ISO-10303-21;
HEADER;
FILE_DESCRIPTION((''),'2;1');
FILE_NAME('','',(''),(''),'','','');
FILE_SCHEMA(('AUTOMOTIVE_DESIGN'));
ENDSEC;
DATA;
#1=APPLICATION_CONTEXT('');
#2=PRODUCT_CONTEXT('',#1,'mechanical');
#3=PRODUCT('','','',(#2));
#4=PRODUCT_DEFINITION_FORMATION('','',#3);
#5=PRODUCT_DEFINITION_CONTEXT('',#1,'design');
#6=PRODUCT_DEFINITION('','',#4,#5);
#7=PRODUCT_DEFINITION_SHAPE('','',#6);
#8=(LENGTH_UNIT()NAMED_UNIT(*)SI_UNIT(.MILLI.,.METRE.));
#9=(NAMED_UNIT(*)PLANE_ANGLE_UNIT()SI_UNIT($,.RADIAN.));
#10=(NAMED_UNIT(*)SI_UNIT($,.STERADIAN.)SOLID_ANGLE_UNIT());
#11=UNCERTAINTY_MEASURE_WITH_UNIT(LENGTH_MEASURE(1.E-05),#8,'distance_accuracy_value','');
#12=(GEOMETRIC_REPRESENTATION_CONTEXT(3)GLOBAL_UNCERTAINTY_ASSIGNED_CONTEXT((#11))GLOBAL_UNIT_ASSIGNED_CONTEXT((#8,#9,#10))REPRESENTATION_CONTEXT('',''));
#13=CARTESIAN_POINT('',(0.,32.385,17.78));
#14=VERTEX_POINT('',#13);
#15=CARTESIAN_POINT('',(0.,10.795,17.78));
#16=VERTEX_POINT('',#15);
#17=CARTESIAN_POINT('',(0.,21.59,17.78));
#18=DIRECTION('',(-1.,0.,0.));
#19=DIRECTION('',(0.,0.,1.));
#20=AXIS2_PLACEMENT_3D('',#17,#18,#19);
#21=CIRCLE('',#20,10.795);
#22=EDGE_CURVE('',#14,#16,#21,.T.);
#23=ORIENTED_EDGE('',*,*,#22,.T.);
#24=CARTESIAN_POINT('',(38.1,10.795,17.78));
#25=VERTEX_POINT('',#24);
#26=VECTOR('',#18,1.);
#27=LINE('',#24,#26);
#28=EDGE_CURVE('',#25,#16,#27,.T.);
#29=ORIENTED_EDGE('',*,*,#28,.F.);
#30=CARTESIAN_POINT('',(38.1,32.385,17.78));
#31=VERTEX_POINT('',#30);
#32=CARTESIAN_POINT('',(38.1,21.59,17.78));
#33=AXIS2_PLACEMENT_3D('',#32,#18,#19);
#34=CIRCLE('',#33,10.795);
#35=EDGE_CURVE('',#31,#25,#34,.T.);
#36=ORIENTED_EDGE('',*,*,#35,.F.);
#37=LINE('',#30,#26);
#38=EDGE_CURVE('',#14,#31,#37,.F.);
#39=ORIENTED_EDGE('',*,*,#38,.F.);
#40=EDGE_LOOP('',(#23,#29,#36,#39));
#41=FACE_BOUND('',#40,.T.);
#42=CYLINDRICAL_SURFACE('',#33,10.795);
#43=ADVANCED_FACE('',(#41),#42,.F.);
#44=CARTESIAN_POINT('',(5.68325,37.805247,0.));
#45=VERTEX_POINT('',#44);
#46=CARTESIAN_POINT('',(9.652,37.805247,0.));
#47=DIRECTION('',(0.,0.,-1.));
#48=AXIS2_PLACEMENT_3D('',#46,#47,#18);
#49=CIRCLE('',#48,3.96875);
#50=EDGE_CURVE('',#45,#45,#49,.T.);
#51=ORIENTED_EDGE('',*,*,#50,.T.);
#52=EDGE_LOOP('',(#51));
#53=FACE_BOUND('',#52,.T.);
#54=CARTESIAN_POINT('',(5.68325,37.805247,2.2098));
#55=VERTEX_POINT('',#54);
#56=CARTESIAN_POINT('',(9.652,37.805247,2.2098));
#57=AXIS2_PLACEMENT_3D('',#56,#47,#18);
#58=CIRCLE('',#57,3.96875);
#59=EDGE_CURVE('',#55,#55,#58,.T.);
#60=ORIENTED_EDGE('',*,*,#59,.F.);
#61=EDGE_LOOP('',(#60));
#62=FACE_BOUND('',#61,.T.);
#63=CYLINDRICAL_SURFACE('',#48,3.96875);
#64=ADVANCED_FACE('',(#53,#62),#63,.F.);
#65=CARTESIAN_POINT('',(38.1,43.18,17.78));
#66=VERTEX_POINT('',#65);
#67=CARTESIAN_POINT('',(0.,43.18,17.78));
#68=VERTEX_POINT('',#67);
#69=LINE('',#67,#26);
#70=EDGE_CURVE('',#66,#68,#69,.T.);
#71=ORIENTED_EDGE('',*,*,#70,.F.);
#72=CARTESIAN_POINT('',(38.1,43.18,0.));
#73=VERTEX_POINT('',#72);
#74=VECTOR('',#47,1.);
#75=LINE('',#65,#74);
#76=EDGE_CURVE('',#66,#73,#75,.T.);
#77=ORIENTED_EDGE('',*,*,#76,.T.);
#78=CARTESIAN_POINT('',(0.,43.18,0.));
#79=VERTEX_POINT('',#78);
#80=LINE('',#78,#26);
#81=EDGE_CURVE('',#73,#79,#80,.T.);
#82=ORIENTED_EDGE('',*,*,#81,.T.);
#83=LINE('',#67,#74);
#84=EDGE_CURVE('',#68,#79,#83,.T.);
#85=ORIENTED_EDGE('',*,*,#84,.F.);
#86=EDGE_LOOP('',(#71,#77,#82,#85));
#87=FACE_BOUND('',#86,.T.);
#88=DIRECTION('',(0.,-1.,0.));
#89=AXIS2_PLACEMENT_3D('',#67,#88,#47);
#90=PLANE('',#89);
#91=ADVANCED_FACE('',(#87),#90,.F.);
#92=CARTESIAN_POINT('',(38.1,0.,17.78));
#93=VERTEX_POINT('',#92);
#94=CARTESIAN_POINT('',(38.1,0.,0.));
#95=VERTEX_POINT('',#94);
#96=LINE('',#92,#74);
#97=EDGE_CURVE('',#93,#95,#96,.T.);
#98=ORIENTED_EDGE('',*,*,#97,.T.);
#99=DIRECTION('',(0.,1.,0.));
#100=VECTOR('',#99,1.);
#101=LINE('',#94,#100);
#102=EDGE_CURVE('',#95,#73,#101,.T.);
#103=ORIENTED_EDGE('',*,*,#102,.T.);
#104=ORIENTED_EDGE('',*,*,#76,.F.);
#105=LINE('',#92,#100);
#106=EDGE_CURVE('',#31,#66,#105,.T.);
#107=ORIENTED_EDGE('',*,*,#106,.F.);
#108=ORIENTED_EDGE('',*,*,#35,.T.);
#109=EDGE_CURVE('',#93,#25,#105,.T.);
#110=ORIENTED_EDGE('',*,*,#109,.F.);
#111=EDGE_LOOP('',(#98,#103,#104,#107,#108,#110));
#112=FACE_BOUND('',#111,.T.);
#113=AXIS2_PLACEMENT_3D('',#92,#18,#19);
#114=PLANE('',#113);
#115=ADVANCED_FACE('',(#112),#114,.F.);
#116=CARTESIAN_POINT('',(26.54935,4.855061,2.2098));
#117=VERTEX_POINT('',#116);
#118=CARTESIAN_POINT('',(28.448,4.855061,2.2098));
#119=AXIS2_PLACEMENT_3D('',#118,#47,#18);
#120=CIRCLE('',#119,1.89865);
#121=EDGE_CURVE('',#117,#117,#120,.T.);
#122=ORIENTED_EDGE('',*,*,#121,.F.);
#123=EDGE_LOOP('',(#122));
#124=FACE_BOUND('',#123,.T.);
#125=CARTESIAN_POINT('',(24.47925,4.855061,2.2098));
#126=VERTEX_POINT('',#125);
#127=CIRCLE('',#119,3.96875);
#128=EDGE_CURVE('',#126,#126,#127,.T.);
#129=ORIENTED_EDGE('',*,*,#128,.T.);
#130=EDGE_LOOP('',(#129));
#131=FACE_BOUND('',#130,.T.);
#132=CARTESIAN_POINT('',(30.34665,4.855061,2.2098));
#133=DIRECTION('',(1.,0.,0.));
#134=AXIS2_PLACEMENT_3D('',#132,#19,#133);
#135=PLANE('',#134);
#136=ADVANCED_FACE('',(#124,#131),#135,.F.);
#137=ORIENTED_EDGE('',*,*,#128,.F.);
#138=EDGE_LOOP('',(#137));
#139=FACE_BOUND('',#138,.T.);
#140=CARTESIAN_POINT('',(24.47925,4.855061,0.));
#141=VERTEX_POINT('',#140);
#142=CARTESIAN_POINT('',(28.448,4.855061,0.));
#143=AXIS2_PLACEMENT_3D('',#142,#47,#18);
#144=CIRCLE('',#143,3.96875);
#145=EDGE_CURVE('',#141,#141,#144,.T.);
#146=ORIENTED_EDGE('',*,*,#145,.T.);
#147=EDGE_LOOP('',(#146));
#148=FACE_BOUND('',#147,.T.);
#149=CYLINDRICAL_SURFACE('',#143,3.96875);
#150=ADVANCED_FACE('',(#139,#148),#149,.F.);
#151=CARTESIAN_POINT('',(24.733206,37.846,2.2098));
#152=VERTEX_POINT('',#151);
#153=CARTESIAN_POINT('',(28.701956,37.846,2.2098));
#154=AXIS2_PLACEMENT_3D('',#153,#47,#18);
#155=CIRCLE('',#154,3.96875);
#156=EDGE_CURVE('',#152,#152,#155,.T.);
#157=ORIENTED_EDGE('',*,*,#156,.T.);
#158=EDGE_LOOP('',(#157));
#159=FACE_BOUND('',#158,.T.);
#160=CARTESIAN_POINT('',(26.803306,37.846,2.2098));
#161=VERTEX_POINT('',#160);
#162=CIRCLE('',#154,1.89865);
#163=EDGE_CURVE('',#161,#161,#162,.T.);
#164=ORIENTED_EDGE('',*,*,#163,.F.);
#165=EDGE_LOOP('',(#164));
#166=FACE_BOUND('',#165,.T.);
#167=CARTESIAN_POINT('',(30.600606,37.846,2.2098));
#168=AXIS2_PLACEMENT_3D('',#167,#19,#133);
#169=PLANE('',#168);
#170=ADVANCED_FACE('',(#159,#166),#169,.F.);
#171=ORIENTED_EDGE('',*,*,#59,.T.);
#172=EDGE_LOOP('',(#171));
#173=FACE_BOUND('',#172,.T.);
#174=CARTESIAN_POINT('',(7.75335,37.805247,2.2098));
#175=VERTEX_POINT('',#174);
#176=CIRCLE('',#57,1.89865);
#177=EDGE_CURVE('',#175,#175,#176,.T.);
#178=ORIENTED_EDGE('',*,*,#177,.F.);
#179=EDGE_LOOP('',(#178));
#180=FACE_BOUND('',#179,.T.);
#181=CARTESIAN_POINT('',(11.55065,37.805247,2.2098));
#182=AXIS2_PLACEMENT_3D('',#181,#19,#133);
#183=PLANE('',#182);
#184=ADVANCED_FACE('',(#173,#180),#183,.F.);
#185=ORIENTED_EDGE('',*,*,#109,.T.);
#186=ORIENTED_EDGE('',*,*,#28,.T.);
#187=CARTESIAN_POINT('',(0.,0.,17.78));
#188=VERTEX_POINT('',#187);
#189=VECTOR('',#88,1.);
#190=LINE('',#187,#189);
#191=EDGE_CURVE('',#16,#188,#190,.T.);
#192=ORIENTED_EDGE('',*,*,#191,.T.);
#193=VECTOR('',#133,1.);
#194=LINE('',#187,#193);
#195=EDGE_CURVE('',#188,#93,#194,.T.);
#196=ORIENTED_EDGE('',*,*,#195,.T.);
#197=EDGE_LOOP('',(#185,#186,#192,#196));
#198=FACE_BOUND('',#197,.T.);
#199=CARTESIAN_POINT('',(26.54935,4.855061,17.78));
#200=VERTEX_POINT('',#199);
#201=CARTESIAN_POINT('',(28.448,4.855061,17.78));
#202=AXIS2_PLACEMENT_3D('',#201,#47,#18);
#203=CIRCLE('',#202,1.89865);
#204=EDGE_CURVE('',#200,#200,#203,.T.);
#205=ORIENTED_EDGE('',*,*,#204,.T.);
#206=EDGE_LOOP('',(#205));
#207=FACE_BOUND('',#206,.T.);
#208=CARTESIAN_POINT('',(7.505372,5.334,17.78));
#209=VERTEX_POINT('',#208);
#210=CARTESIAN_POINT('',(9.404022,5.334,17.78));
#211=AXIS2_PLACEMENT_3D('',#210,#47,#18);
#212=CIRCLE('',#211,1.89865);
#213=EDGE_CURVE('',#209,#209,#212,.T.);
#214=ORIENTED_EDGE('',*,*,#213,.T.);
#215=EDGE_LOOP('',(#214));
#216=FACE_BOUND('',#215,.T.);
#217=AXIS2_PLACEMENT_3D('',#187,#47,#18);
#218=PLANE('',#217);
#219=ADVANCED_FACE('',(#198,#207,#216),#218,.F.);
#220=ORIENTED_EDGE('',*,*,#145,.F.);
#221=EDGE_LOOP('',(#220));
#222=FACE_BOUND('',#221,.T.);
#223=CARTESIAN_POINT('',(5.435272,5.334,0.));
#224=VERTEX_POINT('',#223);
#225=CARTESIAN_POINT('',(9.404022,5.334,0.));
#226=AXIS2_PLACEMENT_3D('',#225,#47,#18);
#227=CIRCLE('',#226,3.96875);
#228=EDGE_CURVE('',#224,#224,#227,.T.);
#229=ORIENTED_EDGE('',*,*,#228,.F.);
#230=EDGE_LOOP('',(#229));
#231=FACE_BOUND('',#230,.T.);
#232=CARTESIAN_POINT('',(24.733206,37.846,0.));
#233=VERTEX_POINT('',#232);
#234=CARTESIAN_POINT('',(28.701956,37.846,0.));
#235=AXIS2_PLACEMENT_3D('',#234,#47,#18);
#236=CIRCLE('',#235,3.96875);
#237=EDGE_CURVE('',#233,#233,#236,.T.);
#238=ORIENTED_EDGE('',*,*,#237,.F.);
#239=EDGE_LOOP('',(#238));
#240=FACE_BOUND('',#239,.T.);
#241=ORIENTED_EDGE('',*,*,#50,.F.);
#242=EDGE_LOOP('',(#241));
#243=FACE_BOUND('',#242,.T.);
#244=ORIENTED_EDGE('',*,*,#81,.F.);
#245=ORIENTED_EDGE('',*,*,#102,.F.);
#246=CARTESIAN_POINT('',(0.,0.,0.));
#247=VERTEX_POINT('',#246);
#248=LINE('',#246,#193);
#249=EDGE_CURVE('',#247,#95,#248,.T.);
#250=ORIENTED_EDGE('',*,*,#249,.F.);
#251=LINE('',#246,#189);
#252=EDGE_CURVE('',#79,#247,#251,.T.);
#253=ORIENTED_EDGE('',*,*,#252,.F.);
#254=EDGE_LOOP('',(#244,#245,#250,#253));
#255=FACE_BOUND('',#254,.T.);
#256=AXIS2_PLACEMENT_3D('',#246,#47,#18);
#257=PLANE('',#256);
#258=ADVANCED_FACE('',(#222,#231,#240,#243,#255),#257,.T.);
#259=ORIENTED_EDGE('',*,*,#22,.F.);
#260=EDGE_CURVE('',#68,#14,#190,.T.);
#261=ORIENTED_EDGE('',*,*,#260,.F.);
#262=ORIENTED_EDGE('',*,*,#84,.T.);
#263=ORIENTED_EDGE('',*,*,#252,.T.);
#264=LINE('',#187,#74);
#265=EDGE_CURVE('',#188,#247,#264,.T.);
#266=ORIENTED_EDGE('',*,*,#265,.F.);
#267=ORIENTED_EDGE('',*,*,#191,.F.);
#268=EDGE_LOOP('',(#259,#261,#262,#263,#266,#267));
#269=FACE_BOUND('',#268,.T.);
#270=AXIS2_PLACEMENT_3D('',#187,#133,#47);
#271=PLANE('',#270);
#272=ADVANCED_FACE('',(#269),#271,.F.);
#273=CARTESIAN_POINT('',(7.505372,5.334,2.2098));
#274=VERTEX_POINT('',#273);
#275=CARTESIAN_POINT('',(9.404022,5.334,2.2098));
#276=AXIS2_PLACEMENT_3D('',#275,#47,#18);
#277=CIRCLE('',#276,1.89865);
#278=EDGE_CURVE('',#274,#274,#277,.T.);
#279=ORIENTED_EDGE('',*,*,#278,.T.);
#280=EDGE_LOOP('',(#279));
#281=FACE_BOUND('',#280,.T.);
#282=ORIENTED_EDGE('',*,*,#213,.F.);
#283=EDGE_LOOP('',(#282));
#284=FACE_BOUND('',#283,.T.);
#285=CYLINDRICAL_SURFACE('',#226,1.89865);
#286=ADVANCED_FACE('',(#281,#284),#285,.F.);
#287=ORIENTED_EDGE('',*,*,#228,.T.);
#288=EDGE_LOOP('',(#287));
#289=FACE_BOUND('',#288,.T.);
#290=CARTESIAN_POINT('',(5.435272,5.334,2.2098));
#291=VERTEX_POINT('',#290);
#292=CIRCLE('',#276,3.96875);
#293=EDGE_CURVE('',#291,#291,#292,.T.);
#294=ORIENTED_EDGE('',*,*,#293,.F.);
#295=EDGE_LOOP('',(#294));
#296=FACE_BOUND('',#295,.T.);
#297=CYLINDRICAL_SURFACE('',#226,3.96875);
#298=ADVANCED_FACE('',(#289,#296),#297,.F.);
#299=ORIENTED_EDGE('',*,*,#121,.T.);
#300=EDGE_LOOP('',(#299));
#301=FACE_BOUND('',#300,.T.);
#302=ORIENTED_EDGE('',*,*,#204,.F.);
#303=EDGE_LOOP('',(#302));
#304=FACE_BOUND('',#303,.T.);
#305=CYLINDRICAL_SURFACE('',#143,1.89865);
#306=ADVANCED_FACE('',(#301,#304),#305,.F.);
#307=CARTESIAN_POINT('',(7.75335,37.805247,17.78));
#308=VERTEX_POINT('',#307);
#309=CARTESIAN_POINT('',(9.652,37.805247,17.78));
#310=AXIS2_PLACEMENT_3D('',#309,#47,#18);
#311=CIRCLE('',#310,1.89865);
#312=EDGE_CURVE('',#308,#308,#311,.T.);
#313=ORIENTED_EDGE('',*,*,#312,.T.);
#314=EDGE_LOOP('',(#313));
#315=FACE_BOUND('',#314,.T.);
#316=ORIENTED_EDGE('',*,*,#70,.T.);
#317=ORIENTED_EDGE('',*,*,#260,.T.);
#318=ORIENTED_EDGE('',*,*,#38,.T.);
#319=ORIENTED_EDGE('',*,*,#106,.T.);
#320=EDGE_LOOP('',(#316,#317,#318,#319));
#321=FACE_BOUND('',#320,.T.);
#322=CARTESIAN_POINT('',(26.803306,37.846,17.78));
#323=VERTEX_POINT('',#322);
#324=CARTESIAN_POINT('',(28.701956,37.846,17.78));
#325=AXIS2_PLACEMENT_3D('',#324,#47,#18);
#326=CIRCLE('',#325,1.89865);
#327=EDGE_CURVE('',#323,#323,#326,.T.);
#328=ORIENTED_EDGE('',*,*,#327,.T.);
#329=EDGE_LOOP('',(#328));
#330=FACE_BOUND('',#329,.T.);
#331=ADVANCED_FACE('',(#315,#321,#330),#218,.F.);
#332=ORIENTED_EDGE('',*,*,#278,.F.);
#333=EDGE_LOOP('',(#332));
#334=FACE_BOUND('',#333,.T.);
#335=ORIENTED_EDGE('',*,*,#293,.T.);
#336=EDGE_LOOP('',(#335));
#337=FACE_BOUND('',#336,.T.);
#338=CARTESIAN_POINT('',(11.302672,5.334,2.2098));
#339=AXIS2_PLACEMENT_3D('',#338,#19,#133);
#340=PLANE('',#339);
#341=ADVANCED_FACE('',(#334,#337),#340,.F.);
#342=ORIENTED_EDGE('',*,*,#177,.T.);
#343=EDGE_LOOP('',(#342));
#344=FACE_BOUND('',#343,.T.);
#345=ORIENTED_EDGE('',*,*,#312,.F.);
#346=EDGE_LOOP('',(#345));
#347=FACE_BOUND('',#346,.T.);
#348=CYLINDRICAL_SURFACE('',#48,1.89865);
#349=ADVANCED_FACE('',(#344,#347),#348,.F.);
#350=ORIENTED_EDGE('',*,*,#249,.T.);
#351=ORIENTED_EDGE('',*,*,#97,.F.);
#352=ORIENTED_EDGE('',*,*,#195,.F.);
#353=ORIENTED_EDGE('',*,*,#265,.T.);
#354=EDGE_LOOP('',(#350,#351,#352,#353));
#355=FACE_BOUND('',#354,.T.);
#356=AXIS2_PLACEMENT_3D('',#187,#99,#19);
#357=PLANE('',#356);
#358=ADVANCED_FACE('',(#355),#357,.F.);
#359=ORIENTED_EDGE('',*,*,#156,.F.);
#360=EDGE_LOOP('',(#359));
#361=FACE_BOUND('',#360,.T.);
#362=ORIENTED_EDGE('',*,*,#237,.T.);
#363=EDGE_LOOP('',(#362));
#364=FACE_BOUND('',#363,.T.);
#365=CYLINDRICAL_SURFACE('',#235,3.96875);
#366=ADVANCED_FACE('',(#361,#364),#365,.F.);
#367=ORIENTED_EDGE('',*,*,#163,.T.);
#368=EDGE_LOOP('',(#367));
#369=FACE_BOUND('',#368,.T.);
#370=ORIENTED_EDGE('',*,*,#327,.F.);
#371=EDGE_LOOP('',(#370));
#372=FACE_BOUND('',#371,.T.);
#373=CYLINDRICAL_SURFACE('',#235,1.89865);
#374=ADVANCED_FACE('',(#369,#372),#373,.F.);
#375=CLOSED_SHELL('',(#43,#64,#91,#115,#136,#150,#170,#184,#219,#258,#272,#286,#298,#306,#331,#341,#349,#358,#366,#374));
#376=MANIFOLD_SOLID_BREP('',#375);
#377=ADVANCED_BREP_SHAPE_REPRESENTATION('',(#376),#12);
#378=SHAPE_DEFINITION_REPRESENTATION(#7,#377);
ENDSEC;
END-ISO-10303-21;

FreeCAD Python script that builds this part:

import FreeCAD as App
import Part
import Sketcher
Q = App.Units.Quantity

doc = App.newDocument("Part")
body = doc.addObject("PartDesign::Body", "Body")

# Sketch on XY plane
sketch1 = doc.addObject("Sketcher::SketchObject", "Sketch")
body.addObject(sketch1)
sketch1.AttachmentSupport = (doc.XY_Plane, [""])
sketch1.MapMode = "FlatFace"
sketch1.addGeometry([
    Part.LineSegment(App.Vector(0, 43.18, 0), App.Vector(0, 0, 0)),
    Part.LineSegment(App.Vector(0, 0, 0), App.Vector(38.1, 0, 0)),
    Part.LineSegment(App.Vector(38.1, 0, 0), App.Vector(38.1, 43.18, 0)),
    Part.LineSegment(App.Vector(38.1, 43.18, 0), App.Vector(0, 43.18, 0)),
], False)
sketch1.addConstraint([
    Sketcher.Constraint("Coincident", 0, 2, 1, 1),
    Sketcher.Constraint("Coincident", 1, 2, 2, 1),
    Sketcher.Constraint("Coincident", 2, 2, 3, 1),
    Sketcher.Constraint("Coincident", 3, 2, 0, 1),
    Sketcher.Constraint("Vertical", 0),
    Sketcher.Constraint("Horizontal", 1),
    Sketcher.Constraint("Vertical", 2),
    Sketcher.Constraint("Horizontal", 3),
    Sketcher.Constraint("Coincident", 0, 2, -1, 1),
    Sketcher.Constraint("DistanceX", 1, 1, 1, 2, Q("1.5 in")),
    Sketcher.Constraint("DistanceY", 0, 2, 0, 1, Q("1.7 in")),
])
pad1 = doc.addObject("PartDesign::Pad", "Pad")
body.addObject(pad1)
pad1.Profile = sketch1
pad1.Length = Q("0.7 in")

# Sketch on YZ plane
sketch2 = doc.addObject("Sketcher::SketchObject", "Sketch001")
body.addObject(sketch2)
sketch2.AttachmentSupport = (doc.YZ_Plane, [""])
sketch2.MapMode = "FlatFace"
sketch2.addGeometry(Part.Circle(App.Vector(21.59, 17.78, 0), App.Vector(0, 0, 1), 10.795), False)
sketch2.addConstraint([
    Sketcher.Constraint("Diameter", 0, Q("0.85 in")),
    Sketcher.Constraint("DistanceY", -1, 1, 0, 3, Q("0.7 in")),
    Sketcher.Constraint("DistanceX", -1, 1, 0, 3, Q("0.85 in")),
])
pocket1 = doc.addObject("PartDesign::Pocket", "Pocket")
body.addObject(pocket1)
pocket1.Profile = sketch2
pocket1.Type = "ThroughAll"
pocket1.Reversed = True

# Sketch on XY plane
sketch3 = doc.addObject("Sketcher::SketchObject", "Sketch002")
body.addObject(sketch3)
sketch3.AttachmentSupport = (doc.XY_Plane, [""])
sketch3.MapMode = "FlatFace"
sketch3.addGeometry([
    Part.Circle(App.Vector(28.701956, 37.846, 0), App.Vector(0, 0, 1), 1.89865),
    Part.Circle(App.Vector(9.652, 37.805247, 0), App.Vector(0, 0, 1), 1.89865),
    Part.Circle(App.Vector(28.448, 4.855061, 0), App.Vector(0, 0, 1), 1.89865),
    Part.Circle(App.Vector(9.404022, 5.334, 0), App.Vector(0, 0, 1), 1.89865),
], False)
sketch3.addConstraint([
    Sketcher.Constraint("Equal", 0, 1),
    Sketcher.Constraint("Equal", 1, 2),
    Sketcher.Constraint("Equal", 2, 3),
    Sketcher.Constraint("Diameter", 0, Q("0.1495 in")),
    Sketcher.Constraint("DistanceY", -1, 1, 0, 3, Q("1.49 in")),
    Sketcher.Constraint("DistanceX", -1, 1, 1, 3, Q("0.38 in")),
    Sketcher.Constraint("DistanceX", -1, 1, 2, 3, Q("1.12 in")),
    Sketcher.Constraint("DistanceY", -1, 1, 3, 3, Q("0.21 in")),
    Sketcher.Constraint("DistanceY", -1, 1, 2, 3, 4.855061),
    Sketcher.Constraint("DistanceX", -1, 1, 3, 3, 9.404022),
    Sketcher.Constraint("DistanceX", -1, 1, 0, 3, 28.701956),
    Sketcher.Constraint("DistanceY", -1, 1, 1, 3, 37.805247),
])
doc.recompute()
hole = doc.addObject("PartDesign::Hole", "Hole")
body.addObject(hole)
hole.Profile = sketch3
hole.ThreadType = "None"
hole.Diameter = Q("0.1495 in")
hole.DepthType = "ThroughAll"
hole.HoleCutType = "Counterbore"
hole.HoleCutDiameter = Q("0.3125 in")
hole.HoleCutDepth = Q("0.087 in")
hole.Reversed = True

doc.recompute()
